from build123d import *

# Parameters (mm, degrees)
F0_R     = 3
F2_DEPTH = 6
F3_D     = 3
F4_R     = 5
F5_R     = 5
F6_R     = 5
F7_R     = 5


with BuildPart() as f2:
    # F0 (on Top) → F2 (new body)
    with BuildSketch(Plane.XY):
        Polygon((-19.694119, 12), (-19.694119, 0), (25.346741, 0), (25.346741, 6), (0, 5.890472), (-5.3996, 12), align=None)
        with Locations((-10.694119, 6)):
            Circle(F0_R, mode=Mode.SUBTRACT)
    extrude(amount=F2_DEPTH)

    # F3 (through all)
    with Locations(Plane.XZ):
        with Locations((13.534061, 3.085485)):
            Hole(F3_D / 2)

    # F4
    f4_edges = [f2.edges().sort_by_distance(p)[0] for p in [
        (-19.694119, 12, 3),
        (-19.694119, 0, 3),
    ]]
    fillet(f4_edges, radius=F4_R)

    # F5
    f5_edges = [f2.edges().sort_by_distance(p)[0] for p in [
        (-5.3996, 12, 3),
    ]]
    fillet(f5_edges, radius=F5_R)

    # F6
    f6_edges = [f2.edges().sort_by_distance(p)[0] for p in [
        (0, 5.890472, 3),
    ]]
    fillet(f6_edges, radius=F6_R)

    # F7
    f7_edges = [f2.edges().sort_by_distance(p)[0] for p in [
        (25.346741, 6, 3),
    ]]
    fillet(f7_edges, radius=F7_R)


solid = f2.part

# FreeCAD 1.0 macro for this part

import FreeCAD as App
import Part
import Sketcher

V = App.Vector


def edges_at(feature, points):
    """Names of the edges that pass closest to the given points."""
    edges = feature.Shape.Edges
    near = lambda p: min(range(len(edges)), key=lambda i: edges[i].distToShape(Part.Vertex(*p))[0])
    return sorted({f"Edge{near(p) + 1}" for p in points})


def add_polygon(sketch, points):
    """Adds a closed chain of lines whose ends are joined by coincident constraints."""
    first, n = sketch.GeometryCount, len(points)
    for a, b in zip(points, points[1:] + points[:1]):
        sketch.addGeometry(Part.LineSegment(App.Vector(*a, 0), App.Vector(*b, 0)), False)
    for i in range(n):
        sketch.addConstraint(Sketcher.Constraint("Coincident", first + i, 2, first + (i + 1) % n, 1))

doc = App.newDocument("Part")
body = doc.addObject("PartDesign::Body", "Body")

sketch1 = body.newObject("Sketcher::SketchObject", "Sketch")
sketch1.AttachmentSupport = (doc.getObject("XY_Plane"), [""])
sketch1.MapMode = "FlatFace"
add_polygon(sketch1, [(-19.7, 12), (-19.7, 0), (25.3, 0), (25.3, 6), (0, 5.9), (-5.4, 12)])
sketch1.addGeometry(Part.Circle(V(-10.7, 6, 0), V(0, 0, 1), 3), False)
sketch1.addConstraint(Sketcher.Constraint("Vertical", 0))
sketch1.addConstraint(Sketcher.Constraint("Horizontal", 1))
sketch1.addConstraint(Sketcher.Constraint("Vertical", 2))
sketch1.addConstraint(Sketcher.Constraint("Horizontal", 5))
sketch1.addConstraint(Sketcher.Constraint("PointOnObject", 0, 2, -1))
sketch1.addConstraint(Sketcher.Constraint("PointOnObject", 3, 2, -2))
sketch1.addConstraint(Sketcher.Constraint("Horizontal", 6, 3, 2, 2))
sketch1.addConstraint(Sketcher.Constraint("Diameter", 6, 6.0))
sketch1.addConstraint(Sketcher.Constraint("DistanceY", 0, 2, 0, 1, 12.0))
sketch1.addConstraint(Sketcher.Constraint("DistanceY", 2, 1, 2, 2, 6.0))
sketch1.addConstraint(Sketcher.Constraint("DistanceX", 0, 2, 6, 3, 9.0))
sketch1.addConstraint(Sketcher.Constraint("DistanceX", 1, 1, 1, 2, 45.04086))
sketch1.addConstraint(Sketcher.Constraint("DistanceX", 5, 2, 5, 1, 14.294519))
sketch1.addConstraint(Sketcher.Constraint("DistanceX", 4, 2, -1, 1, 5.3996))
sketch1.addConstraint(Sketcher.Constraint("Distance", 4, 8.15365))
pad1 = body.newObject("PartDesign::Pad", "Pad")
pad1.Profile = sketch1
pad1.Length = 6

sketch2 = body.newObject("Sketcher::SketchObject", "Sketch001")
sketch2.AttachmentSupport = (doc.getObject("XZ_Plane"), [""])
sketch2.MapMode = "FlatFace"
sketch2.addGeometry(Part.Circle(V(13.5, 3.1, 0), V(0, 0, 1), 1.5), False)
sketch2.addConstraint(Sketcher.Constraint("Diameter", 0, 3.0))
sketch2.addConstraint(Sketcher.Constraint("DistanceX", -1, 1, 0, 3, 13.534061))
sketch2.addConstraint(Sketcher.Constraint("DistanceY", -1, 1, 0, 3, 3.085485))
doc.recompute()
hole = body.newObject("PartDesign::Hole", "Hole")
hole.Profile = sketch2
hole.ThreadType = "None"
hole.Diameter = 3
hole.DepthType = "ThroughAll"
doc.recompute()

fillet = body.newObject("PartDesign::Fillet", "Fillet")
fillet.Base = (hole, edges_at(hole, [(-19.694, 12, 3), (-19.694, 0, 3)]))
fillet.Radius = 5
doc.recompute()

fillet2 = body.newObject("PartDesign::Fillet", "Fillet001")
fillet2.Base = (fillet, edges_at(fillet, [(-5.4, 12, 3)]))
fillet2.Radius = 5
doc.recompute()

fillet3 = body.newObject("PartDesign::Fillet", "Fillet002")
fillet3.Base = (fillet2, edges_at(fillet2, [(0, 5.89, 3)]))
fillet3.Radius = 5
doc.recompute()

fillet4 = body.newObject("PartDesign::Fillet", "Fillet003")
fillet4.Base = (fillet3, edges_at(fillet3, [(25.347, 6, 3)]))
fillet4.Radius = 5

doc.recompute()
